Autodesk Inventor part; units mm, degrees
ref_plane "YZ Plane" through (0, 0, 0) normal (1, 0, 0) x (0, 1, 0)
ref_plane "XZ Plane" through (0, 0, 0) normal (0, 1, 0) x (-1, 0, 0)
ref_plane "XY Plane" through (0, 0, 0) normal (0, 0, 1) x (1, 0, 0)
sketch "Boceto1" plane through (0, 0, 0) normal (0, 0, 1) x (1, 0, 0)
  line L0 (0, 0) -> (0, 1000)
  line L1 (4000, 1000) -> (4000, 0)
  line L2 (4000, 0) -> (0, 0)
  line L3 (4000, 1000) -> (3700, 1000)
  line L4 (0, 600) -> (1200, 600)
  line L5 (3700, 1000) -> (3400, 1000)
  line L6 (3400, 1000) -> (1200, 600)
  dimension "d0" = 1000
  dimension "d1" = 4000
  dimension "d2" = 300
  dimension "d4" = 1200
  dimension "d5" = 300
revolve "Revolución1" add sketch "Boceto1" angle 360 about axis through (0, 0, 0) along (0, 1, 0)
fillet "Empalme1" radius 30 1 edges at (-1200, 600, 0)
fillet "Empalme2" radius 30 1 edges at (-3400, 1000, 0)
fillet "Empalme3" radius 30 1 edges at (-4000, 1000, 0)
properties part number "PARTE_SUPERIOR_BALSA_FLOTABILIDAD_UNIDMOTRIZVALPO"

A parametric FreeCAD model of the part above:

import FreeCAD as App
import Part
import Sketcher

V = App.Vector


def edges_at(feature, points):
    """Names of the edges that pass closest to the given points."""
    edges = feature.Shape.Edges
    near = lambda p: min(range(len(edges)), key=lambda i: edges[i].distToShape(Part.Vertex(*p))[0])
    return sorted({f"Edge{near(p) + 1}" for p in points})

doc = App.newDocument("Part")
body = doc.addObject("PartDesign::Body", "Body")

# Sketch on XY plane
sketch1 = body.newObject("Sketcher::SketchObject", "Sketch")
sketch1.AttachmentSupport = (doc.getObject("XY_Plane"), [""])
sketch1.MapMode = "FlatFace"
sketch1.addGeometry(Part.LineSegment(V(0, 600, 0), V(0, 0, 0)), False)
sketch1.addGeometry(Part.LineSegment(V(0, 0, 0), V(4000, 0, 0)), False)
sketch1.addGeometry(Part.LineSegment(V(4000, 0, 0), V(4000, 1000, 0)), False)
sketch1.addGeometry(Part.LineSegment(V(4000, 1000, 0), V(3400, 1000, 0)), False)
sketch1.addGeometry(Part.LineSegment(V(3400, 1000, 0), V(1200, 600, 0)), False)
sketch1.addGeometry(Part.LineSegment(V(1200, 600, 0), V(0, 600, 0)), False)
sketch1.addConstraint(Sketcher.Constraint("Coincident", 0, 2, 1, 1))
sketch1.addConstraint(Sketcher.Constraint("Coincident", 1, 2, 2, 1))
sketch1.addConstraint(Sketcher.Constraint("Coincident", 2, 2, 3, 1))
sketch1.addConstraint(Sketcher.Constraint("Coincident", 3, 2, 4, 1))
sketch1.addConstraint(Sketcher.Constraint("Coincident", 4, 2, 5, 1))
sketch1.addConstraint(Sketcher.Constraint("Coincident", 5, 2, 0, 1))
sketch1.addConstraint(Sketcher.Constraint("Vertical", 0))
sketch1.addConstraint(Sketcher.Constraint("Horizontal", 1))
sketch1.addConstraint(Sketcher.Constraint("Vertical", 2))
sketch1.addConstraint(Sketcher.Constraint("Horizontal", 3))
sketch1.addConstraint(Sketcher.Constraint("Horizontal", 5))
sketch1.addConstraint(Sketcher.Constraint("Coincident", 0, 2, -1, 1))
sketch1.addConstraint(Sketcher.Constraint("Equal", 3, 0))
sketch1.addConstraint(Sketcher.Constraint("DistanceX", 1, 1, 1, 2, 4000.0))
sketch1.addConstraint(Sketcher.Constraint("DistanceX", 5, 2, 5, 1, 1200.0))
sketch1.addConstraint(Sketcher.Constraint("DistanceY", 2, 1, 2, 2, 1000.0))
sketch1.addConstraint(Sketcher.Constraint("DistanceX", 3, 2, 3, 1, 600.0))
revolution = body.newObject("PartDesign::Revolution", "Revolution")
revolution.Profile = sketch1
revolution.ReferenceAxis = (sketch1, ["V_Axis"])
revolution.Angle = 360
doc.recompute()

fillet = body.newObject("PartDesign::Fillet", "Fillet")
fillet.Base = (revolution, edges_at(revolution, [(-1200, 600, 0)]))
fillet.Radius = 30
doc.recompute()

fillet2 = body.newObject("PartDesign::Fillet", "Fillet001")
fillet2.Base = (fillet, edges_at(fillet, [(-3400, 1000, 0)]))
fillet2.Radius = 30
doc.recompute()

fillet3 = body.newObject("PartDesign::Fillet", "Fillet002")
fillet3.Base = (fillet2, edges_at(fillet2, [(-4000, 1000, 0)]))
fillet3.Radius = 30

doc.recompute()
